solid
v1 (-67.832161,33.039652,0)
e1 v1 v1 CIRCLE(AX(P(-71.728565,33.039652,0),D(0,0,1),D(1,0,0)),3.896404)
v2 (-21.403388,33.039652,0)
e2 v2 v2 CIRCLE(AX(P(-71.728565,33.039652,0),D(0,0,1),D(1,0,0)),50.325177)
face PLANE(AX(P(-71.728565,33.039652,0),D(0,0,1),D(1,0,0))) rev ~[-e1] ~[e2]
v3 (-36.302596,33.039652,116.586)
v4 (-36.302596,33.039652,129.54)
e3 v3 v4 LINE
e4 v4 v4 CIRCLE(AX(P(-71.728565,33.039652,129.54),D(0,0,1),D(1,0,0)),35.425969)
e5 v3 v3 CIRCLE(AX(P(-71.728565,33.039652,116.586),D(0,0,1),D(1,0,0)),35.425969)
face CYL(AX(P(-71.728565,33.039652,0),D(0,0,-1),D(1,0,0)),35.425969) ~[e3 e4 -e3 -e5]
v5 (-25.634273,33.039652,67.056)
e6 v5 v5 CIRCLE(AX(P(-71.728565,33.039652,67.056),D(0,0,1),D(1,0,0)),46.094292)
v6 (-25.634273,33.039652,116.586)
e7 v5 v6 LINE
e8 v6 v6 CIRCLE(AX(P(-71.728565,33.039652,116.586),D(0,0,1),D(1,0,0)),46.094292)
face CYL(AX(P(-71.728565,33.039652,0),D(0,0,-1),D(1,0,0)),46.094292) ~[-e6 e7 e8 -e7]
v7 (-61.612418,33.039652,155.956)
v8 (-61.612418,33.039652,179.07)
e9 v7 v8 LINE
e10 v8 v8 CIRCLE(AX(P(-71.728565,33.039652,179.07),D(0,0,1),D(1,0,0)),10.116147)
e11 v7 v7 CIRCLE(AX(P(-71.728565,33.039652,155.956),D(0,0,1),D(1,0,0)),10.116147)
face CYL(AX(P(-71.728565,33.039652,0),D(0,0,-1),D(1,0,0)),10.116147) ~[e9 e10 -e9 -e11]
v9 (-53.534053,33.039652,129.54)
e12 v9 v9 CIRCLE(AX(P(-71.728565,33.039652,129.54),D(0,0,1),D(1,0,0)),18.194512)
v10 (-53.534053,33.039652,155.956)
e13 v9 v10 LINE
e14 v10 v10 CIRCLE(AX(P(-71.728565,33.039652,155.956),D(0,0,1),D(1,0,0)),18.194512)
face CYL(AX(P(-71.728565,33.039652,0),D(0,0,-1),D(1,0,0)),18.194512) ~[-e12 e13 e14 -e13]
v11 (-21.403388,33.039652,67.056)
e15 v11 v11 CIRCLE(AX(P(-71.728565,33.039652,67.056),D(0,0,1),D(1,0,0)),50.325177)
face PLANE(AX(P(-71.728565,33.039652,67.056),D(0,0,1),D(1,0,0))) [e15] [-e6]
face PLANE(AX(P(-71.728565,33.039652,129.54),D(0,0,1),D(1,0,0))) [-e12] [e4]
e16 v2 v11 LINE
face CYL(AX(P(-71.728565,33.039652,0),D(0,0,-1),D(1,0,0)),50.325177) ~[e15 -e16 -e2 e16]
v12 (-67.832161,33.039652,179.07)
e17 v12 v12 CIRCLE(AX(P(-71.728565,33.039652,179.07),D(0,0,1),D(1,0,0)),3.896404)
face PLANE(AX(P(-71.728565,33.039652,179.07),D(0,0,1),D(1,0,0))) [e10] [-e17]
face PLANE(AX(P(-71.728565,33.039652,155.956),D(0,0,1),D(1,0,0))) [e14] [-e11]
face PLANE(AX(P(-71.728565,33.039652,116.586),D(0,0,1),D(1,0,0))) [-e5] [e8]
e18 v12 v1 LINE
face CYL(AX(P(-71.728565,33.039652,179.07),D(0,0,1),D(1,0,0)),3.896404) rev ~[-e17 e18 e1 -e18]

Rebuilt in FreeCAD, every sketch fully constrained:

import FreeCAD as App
import Part
import Sketcher

V = App.Vector

doc = App.newDocument("Part")
params = doc.addObject("Spreadsheet::Sheet", "Params")
for row, (alias, value) in enumerate([
    ("pad1_length", "7.05 in"),
    ("pad2_length", "6.14 in"),
    ("pad3_length", "5.1 in"),
    ("pad4_length", "4.59 in"),
    ("pad5_length", "2.64 in"),
    ("pocket1_length", "16.19 in"),
], start=1):
    params.set(f"A{row}", alias)
    params.set(f"B{row}", "=" + value)
    params.setAlias(f"B{row}", alias)

body = doc.addObject("PartDesign::Body", "Body")

# Sketch on XY plane
sketch1 = doc.addObject("Sketcher::SketchObject", "Sketch")
body.addObject(sketch1)
sketch1.AttachmentSupport = (doc.XY_Plane, [""])
sketch1.MapMode = "FlatFace"
sketch1.addGeometry(Part.Circle(V(-72, 33, 0), V(0, 0, 1), 10), False)
sketch1.addConstraint(Sketcher.Constraint("Diameter", 0, 20.232294))
sketch1.addConstraint(Sketcher.Constraint("DistanceY", -1, 1, 0, 3, 33.039652))
sketch1.addConstraint(Sketcher.Constraint("DistanceX", 0, 3, -1, 1, 71.728565))
pad1 = doc.addObject("PartDesign::Pad", "Pad")
body.addObject(pad1)
pad1.Profile = sketch1
pad1.setExpression("Length", "Params.pad1_length")

# Sketch on XY plane
sketch2 = doc.addObject("Sketcher::SketchObject", "Sketch001")
body.addObject(sketch2)
sketch2.AttachmentSupport = (doc.XY_Plane, [""])
sketch2.MapMode = "FlatFace"
sketch2.addGeometry(Part.Circle(V(-72, 33, 0), V(0, 0, 1), 18), False)
sketch2.addGeometry(Part.Circle(V(-72, 33, 0), V(0, 0, 1), 10), False)
sketch2.addConstraint(Sketcher.Constraint("Coincident", 1, 3, 0, 3))
sketch2.addConstraint(Sketcher.Constraint("Diameter", 0, 36.389024))
sketch2.addConstraint(Sketcher.Constraint("Diameter", 1, 20.232294))
sketch2.addConstraint(Sketcher.Constraint("DistanceY", -1, 1, 0, 3, 33.039652))
sketch2.addConstraint(Sketcher.Constraint("DistanceX", 0, 3, -1, 1, 71.728565))
pad2 = doc.addObject("PartDesign::Pad", "Pad001")
body.addObject(pad2)
pad2.Profile = sketch2
pad2.setExpression("Length", "Params.pad2_length")

# Sketch on XY plane
sketch3 = doc.addObject("Sketcher::SketchObject", "Sketch002")
body.addObject(sketch3)
sketch3.AttachmentSupport = (doc.XY_Plane, [""])
sketch3.MapMode = "FlatFace"
sketch3.addGeometry(Part.Circle(V(-72, 33, 0), V(0, 0, 1), 35), False)
sketch3.addGeometry(Part.Circle(V(-72, 33, 0), V(0, 0, 1), 18), False)
sketch3.addConstraint(Sketcher.Constraint("Coincident", 1, 3, 0, 3))
sketch3.addConstraint(Sketcher.Constraint("Diameter", 0, 70.851938))
sketch3.addConstraint(Sketcher.Constraint("Diameter", 1, 36.389024))
sketch3.addConstraint(Sketcher.Constraint("DistanceY", -1, 1, 0, 3, 33.039652))
sketch3.addConstraint(Sketcher.Constraint("DistanceX", 0, 3, -1, 1, 71.728565))
pad3 = doc.addObject("PartDesign::Pad", "Pad002")
body.addObject(pad3)
pad3.Profile = sketch3
pad3.setExpression("Length", "Params.pad3_length")

# Sketch on XY plane
sketch4 = doc.addObject("Sketcher::SketchObject", "Sketch003")
body.addObject(sketch4)
sketch4.AttachmentSupport = (doc.XY_Plane, [""])
sketch4.MapMode = "FlatFace"
sketch4.addGeometry(Part.Circle(V(-72, 33, 0), V(0, 0, 1), 46), False)
sketch4.addGeometry(Part.Circle(V(-72, 33, 0), V(0, 0, 1), 35), False)
sketch4.addConstraint(Sketcher.Constraint("Coincident", 1, 3, 0, 3))
sketch4.addConstraint(Sketcher.Constraint("Diameter", 1, 70.851938))
sketch4.addConstraint(Sketcher.Constraint("Diameter", 0, 92.188584))
sketch4.addConstraint(Sketcher.Constraint("DistanceY", -1, 1, 0, 3, 33.039652))
sketch4.addConstraint(Sketcher.Constraint("DistanceX", 0, 3, -1, 1, 71.728565))
pad4 = doc.addObject("PartDesign::Pad", "Pad003")
body.addObject(pad4)
pad4.Profile = sketch4
pad4.setExpression("Length", "Params.pad4_length")

# Sketch on XY plane
sketch5 = doc.addObject("Sketcher::SketchObject", "Sketch004")
body.addObject(sketch5)
sketch5.AttachmentSupport = (doc.XY_Plane, [""])
sketch5.MapMode = "FlatFace"
sketch5.addGeometry(Part.Circle(V(-72, 33, 0), V(0, 0, 1), 50), False)
sketch5.addGeometry(Part.Circle(V(-72, 33, 0), V(0, 0, 1), 46), False)
sketch5.addConstraint(Sketcher.Constraint("Coincident", 1, 3, 0, 3))
sketch5.addConstraint(Sketcher.Constraint("Diameter", 0, 100.650354))
sketch5.addConstraint(Sketcher.Constraint("Diameter", 1, 92.188584))
sketch5.addConstraint(Sketcher.Constraint("DistanceY", -1, 1, 0, 3, 33.039652))
sketch5.addConstraint(Sketcher.Constraint("DistanceX", 0, 3, -1, 1, 71.728565))
pad5 = doc.addObject("PartDesign::Pad", "Pad004")
body.addObject(pad5)
pad5.Profile = sketch5
pad5.setExpression("Length", "Params.pad5_length")

# Sketch on XY plane
sketch6 = doc.addObject("Sketcher::SketchObject", "Sketch005")
body.addObject(sketch6)
sketch6.AttachmentSupport = (doc.XY_Plane, [""])
sketch6.MapMode = "FlatFace"
sketch6.AttachmentOffset = App.Placement(V(0, 0, 7.05 * 25.4), App.Rotation())
sketch6.addGeometry(Part.Circle(V(-71.7, 33, 0), V(0, 0, 1), 3.9), False)
sketch6.addConstraint(Sketcher.Constraint("Diameter", 0, 7.792808))
sketch6.addConstraint(Sketcher.Constraint("DistanceY", -1, 1, 0, 3, 33.039652))
sketch6.addConstraint(Sketcher.Constraint("DistanceX", 0, 3, -1, 1, 71.728565))
pocket1 = doc.addObject("PartDesign::Pocket", "Pocket")
body.addObject(pocket1)
pocket1.Profile = sketch6
pocket1.setExpression("Length", "Params.pocket1_length")

doc.recompute()
